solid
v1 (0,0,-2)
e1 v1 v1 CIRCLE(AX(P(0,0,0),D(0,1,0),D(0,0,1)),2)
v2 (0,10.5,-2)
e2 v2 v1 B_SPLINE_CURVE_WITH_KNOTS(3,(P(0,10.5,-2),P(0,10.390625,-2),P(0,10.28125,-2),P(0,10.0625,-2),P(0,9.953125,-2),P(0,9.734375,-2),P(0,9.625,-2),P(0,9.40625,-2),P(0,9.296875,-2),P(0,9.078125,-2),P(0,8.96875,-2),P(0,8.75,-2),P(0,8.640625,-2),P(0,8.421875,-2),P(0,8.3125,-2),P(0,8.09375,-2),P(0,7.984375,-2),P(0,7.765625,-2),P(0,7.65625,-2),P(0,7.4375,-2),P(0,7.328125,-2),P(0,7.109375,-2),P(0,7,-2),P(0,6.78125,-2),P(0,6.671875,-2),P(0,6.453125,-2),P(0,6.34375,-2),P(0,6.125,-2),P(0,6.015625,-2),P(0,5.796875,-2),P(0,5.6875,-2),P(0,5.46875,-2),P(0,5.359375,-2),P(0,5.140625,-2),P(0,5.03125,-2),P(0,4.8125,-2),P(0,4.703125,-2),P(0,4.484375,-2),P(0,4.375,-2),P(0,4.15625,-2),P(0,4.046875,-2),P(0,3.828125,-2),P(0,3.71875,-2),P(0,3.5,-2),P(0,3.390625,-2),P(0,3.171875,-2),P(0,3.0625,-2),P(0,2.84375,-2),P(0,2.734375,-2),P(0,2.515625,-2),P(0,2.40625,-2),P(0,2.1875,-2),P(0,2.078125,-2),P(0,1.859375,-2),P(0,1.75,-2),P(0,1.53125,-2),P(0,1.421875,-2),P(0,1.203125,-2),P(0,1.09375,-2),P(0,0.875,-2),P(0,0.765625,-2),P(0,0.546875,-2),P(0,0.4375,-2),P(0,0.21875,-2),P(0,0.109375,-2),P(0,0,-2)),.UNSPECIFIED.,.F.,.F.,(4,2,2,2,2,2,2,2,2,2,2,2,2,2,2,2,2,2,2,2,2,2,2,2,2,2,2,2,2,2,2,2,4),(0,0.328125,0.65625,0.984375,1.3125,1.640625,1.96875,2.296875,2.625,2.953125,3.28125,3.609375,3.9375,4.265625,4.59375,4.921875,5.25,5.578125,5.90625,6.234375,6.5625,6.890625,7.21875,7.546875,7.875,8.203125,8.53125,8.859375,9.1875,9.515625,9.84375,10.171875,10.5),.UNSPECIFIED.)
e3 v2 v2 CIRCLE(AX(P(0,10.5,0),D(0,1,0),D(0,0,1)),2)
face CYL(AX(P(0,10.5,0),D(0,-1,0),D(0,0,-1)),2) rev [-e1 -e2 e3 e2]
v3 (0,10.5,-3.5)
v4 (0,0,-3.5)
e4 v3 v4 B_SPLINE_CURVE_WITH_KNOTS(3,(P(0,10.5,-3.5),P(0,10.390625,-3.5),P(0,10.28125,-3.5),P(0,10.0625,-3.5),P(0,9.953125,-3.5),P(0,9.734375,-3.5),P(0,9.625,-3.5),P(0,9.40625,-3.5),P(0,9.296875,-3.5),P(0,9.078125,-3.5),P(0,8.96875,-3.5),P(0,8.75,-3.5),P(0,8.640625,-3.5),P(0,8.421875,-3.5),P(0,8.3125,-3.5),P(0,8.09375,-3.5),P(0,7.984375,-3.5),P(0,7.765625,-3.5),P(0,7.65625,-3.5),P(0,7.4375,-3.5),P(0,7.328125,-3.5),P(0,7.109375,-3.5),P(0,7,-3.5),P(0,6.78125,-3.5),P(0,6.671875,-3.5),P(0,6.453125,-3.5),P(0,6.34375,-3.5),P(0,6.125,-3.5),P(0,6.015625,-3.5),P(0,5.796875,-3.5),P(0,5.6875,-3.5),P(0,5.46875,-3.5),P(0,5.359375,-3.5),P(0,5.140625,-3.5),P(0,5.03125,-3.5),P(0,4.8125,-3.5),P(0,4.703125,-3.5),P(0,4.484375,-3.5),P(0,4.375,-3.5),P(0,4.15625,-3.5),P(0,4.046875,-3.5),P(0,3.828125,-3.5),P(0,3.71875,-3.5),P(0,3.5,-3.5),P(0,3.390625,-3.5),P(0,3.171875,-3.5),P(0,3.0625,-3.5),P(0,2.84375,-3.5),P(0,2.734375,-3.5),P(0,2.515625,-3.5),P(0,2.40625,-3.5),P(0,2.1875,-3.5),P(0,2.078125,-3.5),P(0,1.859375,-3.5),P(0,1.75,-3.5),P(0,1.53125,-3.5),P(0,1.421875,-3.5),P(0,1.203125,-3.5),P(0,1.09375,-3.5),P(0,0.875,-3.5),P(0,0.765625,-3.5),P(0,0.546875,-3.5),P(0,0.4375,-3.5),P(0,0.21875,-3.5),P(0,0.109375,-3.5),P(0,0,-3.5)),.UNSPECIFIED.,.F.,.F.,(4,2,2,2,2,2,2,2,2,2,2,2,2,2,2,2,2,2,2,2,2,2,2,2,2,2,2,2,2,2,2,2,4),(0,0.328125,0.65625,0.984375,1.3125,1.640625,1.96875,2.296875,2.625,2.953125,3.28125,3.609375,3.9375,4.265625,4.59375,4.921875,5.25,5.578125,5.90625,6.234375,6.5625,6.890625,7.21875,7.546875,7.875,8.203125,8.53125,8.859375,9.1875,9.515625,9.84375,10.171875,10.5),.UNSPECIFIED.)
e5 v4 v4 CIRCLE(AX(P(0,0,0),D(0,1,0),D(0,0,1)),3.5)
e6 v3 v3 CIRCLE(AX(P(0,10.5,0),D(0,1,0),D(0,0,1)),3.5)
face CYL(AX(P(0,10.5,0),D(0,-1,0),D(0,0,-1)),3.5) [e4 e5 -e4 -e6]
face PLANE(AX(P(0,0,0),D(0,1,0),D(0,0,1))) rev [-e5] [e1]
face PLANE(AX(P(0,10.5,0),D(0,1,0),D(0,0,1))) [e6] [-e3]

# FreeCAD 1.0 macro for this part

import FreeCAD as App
import Part
import Sketcher

doc = App.newDocument("Part")
params = doc.addObject("Spreadsheet::Sheet", "Params")
for row, (alias, value) in enumerate([
    ("sketch1_diameter", "7 mm"),
    ("sketch1_diameter2", "4 mm"),
    ("pad1_length", "10.5 mm"),
], start=1):
    params.set(f"A{row}", alias)
    params.set(f"B{row}", "=" + value)
    params.setAlias(f"B{row}", alias)

body = doc.addObject("PartDesign::Body", "Body")

sketch1 = doc.addObject("Sketcher::SketchObject", "Sketch")
body.addObject(sketch1)
sketch1.AttachmentSupport = (doc.XZ_Plane, [""])
sketch1.MapMode = "FlatFace"
sketch1.addGeometry([
    Part.Circle(App.Vector(0, 0, 0), App.Vector(0, 0, 1), 3.5),
    Part.Circle(App.Vector(0, 0, 0), App.Vector(0, 0, 1), 2),
], False)
sketch1.addConstraint([
    Sketcher.Constraint("Coincident", 0, 3, -1, 1),
    Sketcher.Constraint("Coincident", 1, 3, -1, 1),
    Sketcher.Constraint("Diameter", 0, 7.0),
    Sketcher.Constraint("Diameter", 1, 4.0),
])
sketch1.setExpression("Constraints[2]", "Params.sketch1_diameter")
sketch1.setExpression("Constraints[3]", "Params.sketch1_diameter2")
pad1 = doc.addObject("PartDesign::Pad", "Pad")
body.addObject(pad1)
pad1.Profile = sketch1
pad1.setExpression("Length", "Params.pad1_length")
pad1.Reversed = True

doc.recompute()
